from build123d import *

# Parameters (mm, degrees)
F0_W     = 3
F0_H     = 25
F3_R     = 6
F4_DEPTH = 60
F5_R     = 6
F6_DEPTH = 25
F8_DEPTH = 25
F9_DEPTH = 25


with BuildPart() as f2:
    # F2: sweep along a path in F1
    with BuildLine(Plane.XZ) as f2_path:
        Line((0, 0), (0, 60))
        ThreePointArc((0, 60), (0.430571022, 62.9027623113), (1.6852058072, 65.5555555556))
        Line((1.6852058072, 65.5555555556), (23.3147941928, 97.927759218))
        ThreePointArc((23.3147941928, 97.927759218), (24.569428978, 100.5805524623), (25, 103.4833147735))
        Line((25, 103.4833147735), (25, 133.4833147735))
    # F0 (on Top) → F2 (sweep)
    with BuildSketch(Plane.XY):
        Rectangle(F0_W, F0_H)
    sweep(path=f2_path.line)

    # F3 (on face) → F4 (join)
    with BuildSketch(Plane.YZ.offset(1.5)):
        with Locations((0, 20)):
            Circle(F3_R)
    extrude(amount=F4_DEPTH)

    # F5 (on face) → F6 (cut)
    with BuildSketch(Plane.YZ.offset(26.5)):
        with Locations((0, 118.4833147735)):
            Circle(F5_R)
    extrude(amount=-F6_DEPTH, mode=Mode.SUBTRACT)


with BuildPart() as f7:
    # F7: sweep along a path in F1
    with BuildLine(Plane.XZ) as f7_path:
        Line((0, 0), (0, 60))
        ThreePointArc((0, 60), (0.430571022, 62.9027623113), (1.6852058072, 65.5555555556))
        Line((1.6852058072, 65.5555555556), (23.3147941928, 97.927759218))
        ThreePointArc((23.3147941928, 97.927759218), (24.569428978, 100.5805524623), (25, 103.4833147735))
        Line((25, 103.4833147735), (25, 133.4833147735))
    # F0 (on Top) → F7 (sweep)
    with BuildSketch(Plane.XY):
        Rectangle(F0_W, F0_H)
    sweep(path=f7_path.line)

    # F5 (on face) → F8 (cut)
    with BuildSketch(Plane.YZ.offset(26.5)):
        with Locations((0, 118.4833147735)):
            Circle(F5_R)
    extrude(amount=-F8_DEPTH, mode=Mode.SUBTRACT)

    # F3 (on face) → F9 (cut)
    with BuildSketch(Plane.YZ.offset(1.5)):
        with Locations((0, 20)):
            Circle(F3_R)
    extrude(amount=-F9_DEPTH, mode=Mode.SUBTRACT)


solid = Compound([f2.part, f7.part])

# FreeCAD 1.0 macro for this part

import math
import FreeCAD as App
import Part
import Sketcher
from FreeCAD import Vector


def add_polygon(sketch, points):
    """Adds a closed chain of lines whose ends are joined by coincident constraints."""
    first, n = sketch.GeometryCount, len(points)
    for a, b in zip(points, points[1:] + points[:1]):
        sketch.addGeometry(Part.LineSegment(App.Vector(*a, 0), App.Vector(*b, 0)), False)
    for i in range(n):
        sketch.addConstraint(Sketcher.Constraint("Coincident", first + i, 2, first + (i + 1) % n, 1))

doc = App.newDocument("Part")
body = doc.addObject("PartDesign::Body", "Body")

# Sketch on XY plane
sketch1 = body.newObject("Sketcher::SketchObject", "Sketch")
sketch1.AttachmentSupport = (doc.getObject("XY_Plane"), [""])
sketch1.MapMode = "FlatFace"
add_polygon(sketch1, [(-1.5, 12.5), (-1.5, -12.5), (1.5, -12.5), (1.5, 12.5)])  # lines 0-3
sketch1.addConstraint(Sketcher.Constraint("Vertical", 0))
sketch1.addConstraint(Sketcher.Constraint("Horizontal", 1))
sketch1.addConstraint(Sketcher.Constraint("Vertical", 2))
sketch1.addConstraint(Sketcher.Constraint("Horizontal", 3))
sketch1.addConstraint(Sketcher.Constraint("Symmetric", 0, 2, 2, 2, -1, 1))
sketch1.addConstraint(Sketcher.Constraint("DistanceX", 1, 1, 1, 2, 3.0))
sketch1.addConstraint(Sketcher.Constraint("DistanceY", 0, 2, 0, 1, 25.0))

# Sketch on XZ plane
sketch2 = body.newObject("Sketcher::SketchObject", "Sketch001")
sketch2.AttachmentSupport = (doc.getObject("XZ_Plane"), [""])
sketch2.MapMode = "FlatFace"
sketch2.addGeometry(Part.LineSegment(Vector(0, 0, 0), Vector(0, 60, 0)), False)
sketch2.addGeometry(Part.ArcOfCircle(Part.Circle(Vector(10, 60, 0), Vector(0, 0, 1), 10), math.radians(146.251011), math.radians(180)), False)
sketch2.addGeometry(Part.LineSegment(Vector(1.685206, 65.555556, 0), Vector(23.314794, 97.927759, 0)), False)
sketch2.addGeometry(Part.ArcOfCircle(Part.Circle(Vector(15, 103.483315, 0), Vector(0, 0, 1), 10), math.radians(-33.748989), math.radians(0)), False)
sketch2.addGeometry(Part.LineSegment(Vector(25, 103.483315, 0), Vector(25, 133.483315, 0)), False)
sketch2.addConstraint(Sketcher.Constraint("Tangent", 0, 2, 1, 2))
sketch2.addConstraint(Sketcher.Constraint("Tangent", 1, 1, 2, 1))
sketch2.addConstraint(Sketcher.Constraint("Tangent", 2, 2, 3, 1))
sketch2.addConstraint(Sketcher.Constraint("Tangent", 3, 2, 4, 1))
sketch2.addConstraint(Sketcher.Constraint("Vertical", 0))
sketch2.addConstraint(Sketcher.Constraint("Vertical", 4))
sketch2.addConstraint(Sketcher.Constraint("Coincident", 0, 1, -1, 1))
sketch2.addConstraint(Sketcher.Constraint("Equal", 1, 3))
sketch2.addConstraint(Sketcher.Constraint("Radius", 1, 10.0))
sketch2.addConstraint(Sketcher.Constraint("DistanceY", 0, 1, 0, 2, 60.0))
sketch2.addConstraint(Sketcher.Constraint("DistanceY", 4, 1, 4, 2, 30.0))
sketch2.addConstraint(Sketcher.Constraint("DistanceX", -1, 1, 3, 3, 15.0))
sketch2.addConstraint(Sketcher.Constraint("Distance", 2, 38.933259))
doc.recompute()

additivepipe = body.newObject("PartDesign::AdditivePipe", "AdditivePipe")
additivepipe.Profile = sketch1
additivepipe.Spine = (sketch2, ["Edge1", "Edge2", "Edge3", "Edge4", "Edge5"])

# Sketch on YZ plane
sketch3 = body.newObject("Sketcher::SketchObject", "Sketch002")
sketch3.AttachmentSupport = (doc.getObject("YZ_Plane"), [""])
sketch3.MapMode = "FlatFace"
sketch3.AttachmentOffset = App.Placement(Vector(0, 0, 1.5), App.Rotation())
sketch3.addGeometry(Part.Circle(Vector(0, 20, 0), Vector(0, 0, 1), 6), False)
sketch3.addConstraint(Sketcher.Constraint("PointOnObject", 0, 3, -2))
sketch3.addConstraint(Sketcher.Constraint("Diameter", 0, 12.0))
sketch3.addConstraint(Sketcher.Constraint("DistanceY", -1, 1, 0, 3, 20.0))
pad1 = body.newObject("PartDesign::Pad", "Pad")
pad1.Profile = sketch3
pad1.Length = 60

# Sketch on YZ plane
sketch4 = body.newObject("Sketcher::SketchObject", "Sketch003")
sketch4.AttachmentSupport = (doc.getObject("YZ_Plane"), [""])
sketch4.MapMode = "FlatFace"
sketch4.AttachmentOffset = App.Placement(Vector(0, 0, 26.5), App.Rotation())
sketch4.addGeometry(Part.Circle(Vector(0, 118.483315, 0), Vector(0, 0, 1), 6), False)
sketch4.addConstraint(Sketcher.Constraint("PointOnObject", 0, 3, -2))
sketch4.addConstraint(Sketcher.Constraint("Diameter", 0, 12.0))
sketch4.addConstraint(Sketcher.Constraint("DistanceY", -1, 1, 0, 3, 118.483315))
pocket1 = body.newObject("PartDesign::Pocket", "Pocket")
pocket1.Profile = sketch4
pocket1.Length = 25
body2 = doc.addObject("PartDesign::Body", "Body001")

# Sketch on XY plane
sketch5 = body2.newObject("Sketcher::SketchObject", "Sketch004")
sketch5.AttachmentSupport = (doc.getObject("XY_Plane001"), [""])
sketch5.MapMode = "FlatFace"
add_polygon(sketch5, [(-1.5, 12.5), (-1.5, -12.5), (1.5, -12.5), (1.5, 12.5)])  # lines 0-3
sketch5.addConstraint(Sketcher.Constraint("Vertical", 0))
sketch5.addConstraint(Sketcher.Constraint("Horizontal", 1))
sketch5.addConstraint(Sketcher.Constraint("Vertical", 2))
sketch5.addConstraint(Sketcher.Constraint("Horizontal", 3))
sketch5.addConstraint(Sketcher.Constraint("Symmetric", 0, 2, 2, 2, -1, 1))
sketch5.addConstraint(Sketcher.Constraint("DistanceX", 1, 1, 1, 2, 3.0))
sketch5.addConstraint(Sketcher.Constraint("DistanceY", 0, 2, 0, 1, 25.0))

# Sketch on XZ plane
sketch6 = body2.newObject("Sketcher::SketchObject", "Sketch005")
sketch6.AttachmentSupport = (doc.getObject("XZ_Plane001"), [""])
sketch6.MapMode = "FlatFace"
sketch6.addGeometry(Part.LineSegment(Vector(0, 0, 0), Vector(0, 60, 0)), False)
sketch6.addGeometry(Part.ArcOfCircle(Part.Circle(Vector(10, 60, 0), Vector(0, 0, 1), 10), math.radians(146.251011), math.radians(180)), False)
sketch6.addGeometry(Part.LineSegment(Vector(1.685206, 65.555556, 0), Vector(23.314794, 97.927759, 0)), False)
sketch6.addGeometry(Part.ArcOfCircle(Part.Circle(Vector(15, 103.483315, 0), Vector(0, 0, 1), 10), math.radians(-33.748989), math.radians(0)), False)
sketch6.addGeometry(Part.LineSegment(Vector(25, 103.483315, 0), Vector(25, 133.483315, 0)), False)
sketch6.addConstraint(Sketcher.Constraint("Tangent", 0, 2, 1, 2))
sketch6.addConstraint(Sketcher.Constraint("Tangent", 1, 1, 2, 1))
sketch6.addConstraint(Sketcher.Constraint("Tangent", 2, 2, 3, 1))
sketch6.addConstraint(Sketcher.Constraint("Tangent", 3, 2, 4, 1))
sketch6.addConstraint(Sketcher.Constraint("Vertical", 0))
sketch6.addConstraint(Sketcher.Constraint("Vertical", 4))
sketch6.addConstraint(Sketcher.Constraint("Coincident", 0, 1, -1, 1))
sketch6.addConstraint(Sketcher.Constraint("Equal", 1, 3))
sketch6.addConstraint(Sketcher.Constraint("Radius", 1, 10.0))
sketch6.addConstraint(Sketcher.Constraint("DistanceY", 0, 1, 0, 2, 60.0))
sketch6.addConstraint(Sketcher.Constraint("DistanceY", 4, 1, 4, 2, 30.0))
sketch6.addConstraint(Sketcher.Constraint("DistanceX", -1, 1, 3, 3, 15.0))
sketch6.addConstraint(Sketcher.Constraint("Distance", 2, 38.933259))
doc.recompute()

additivepipe2 = body2.newObject("PartDesign::AdditivePipe", "AdditivePipe001")
additivepipe2.Profile = sketch5
additivepipe2.Spine = (sketch6, ["Edge1", "Edge2", "Edge3", "Edge4", "Edge5"])

# Sketch on YZ plane
sketch7 = body2.newObject("Sketcher::SketchObject", "Sketch006")
sketch7.AttachmentSupport = (doc.getObject("YZ_Plane001"), [""])
sketch7.MapMode = "FlatFace"
sketch7.AttachmentOffset = App.Placement(Vector(0, 0, 26.5), App.Rotation())
sketch7.addGeometry(Part.Circle(Vector(0, 118.483315, 0), Vector(0, 0, 1), 6), False)
sketch7.addConstraint(Sketcher.Constraint("PointOnObject", 0, 3, -2))
sketch7.addConstraint(Sketcher.Constraint("Diameter", 0, 12.0))
sketch7.addConstraint(Sketcher.Constraint("DistanceY", -1, 1, 0, 3, 118.483315))
pocket2 = body2.newObject("PartDesign::Pocket", "Pocket001")
pocket2.Profile = sketch7
pocket2.Length = 25

# Sketch on YZ plane
sketch8 = body2.newObject("Sketcher::SketchObject", "Sketch007")
sketch8.AttachmentSupport = (doc.getObject("YZ_Plane001"), [""])
sketch8.MapMode = "FlatFace"
sketch8.AttachmentOffset = App.Placement(Vector(0, 0, 1.5), App.Rotation())
sketch8.addGeometry(Part.Circle(Vector(0, 20, 0), Vector(0, 0, 1), 6), False)
sketch8.addConstraint(Sketcher.Constraint("PointOnObject", 0, 3, -2))
sketch8.addConstraint(Sketcher.Constraint("Diameter", 0, 12.0))
sketch8.addConstraint(Sketcher.Constraint("DistanceY", -1, 1, 0, 3, 20.0))
pocket3 = body2.newObject("PartDesign::Pocket", "Pocket002")
pocket3.Profile = sketch8
pocket3.Length = 25

doc.recompute()
